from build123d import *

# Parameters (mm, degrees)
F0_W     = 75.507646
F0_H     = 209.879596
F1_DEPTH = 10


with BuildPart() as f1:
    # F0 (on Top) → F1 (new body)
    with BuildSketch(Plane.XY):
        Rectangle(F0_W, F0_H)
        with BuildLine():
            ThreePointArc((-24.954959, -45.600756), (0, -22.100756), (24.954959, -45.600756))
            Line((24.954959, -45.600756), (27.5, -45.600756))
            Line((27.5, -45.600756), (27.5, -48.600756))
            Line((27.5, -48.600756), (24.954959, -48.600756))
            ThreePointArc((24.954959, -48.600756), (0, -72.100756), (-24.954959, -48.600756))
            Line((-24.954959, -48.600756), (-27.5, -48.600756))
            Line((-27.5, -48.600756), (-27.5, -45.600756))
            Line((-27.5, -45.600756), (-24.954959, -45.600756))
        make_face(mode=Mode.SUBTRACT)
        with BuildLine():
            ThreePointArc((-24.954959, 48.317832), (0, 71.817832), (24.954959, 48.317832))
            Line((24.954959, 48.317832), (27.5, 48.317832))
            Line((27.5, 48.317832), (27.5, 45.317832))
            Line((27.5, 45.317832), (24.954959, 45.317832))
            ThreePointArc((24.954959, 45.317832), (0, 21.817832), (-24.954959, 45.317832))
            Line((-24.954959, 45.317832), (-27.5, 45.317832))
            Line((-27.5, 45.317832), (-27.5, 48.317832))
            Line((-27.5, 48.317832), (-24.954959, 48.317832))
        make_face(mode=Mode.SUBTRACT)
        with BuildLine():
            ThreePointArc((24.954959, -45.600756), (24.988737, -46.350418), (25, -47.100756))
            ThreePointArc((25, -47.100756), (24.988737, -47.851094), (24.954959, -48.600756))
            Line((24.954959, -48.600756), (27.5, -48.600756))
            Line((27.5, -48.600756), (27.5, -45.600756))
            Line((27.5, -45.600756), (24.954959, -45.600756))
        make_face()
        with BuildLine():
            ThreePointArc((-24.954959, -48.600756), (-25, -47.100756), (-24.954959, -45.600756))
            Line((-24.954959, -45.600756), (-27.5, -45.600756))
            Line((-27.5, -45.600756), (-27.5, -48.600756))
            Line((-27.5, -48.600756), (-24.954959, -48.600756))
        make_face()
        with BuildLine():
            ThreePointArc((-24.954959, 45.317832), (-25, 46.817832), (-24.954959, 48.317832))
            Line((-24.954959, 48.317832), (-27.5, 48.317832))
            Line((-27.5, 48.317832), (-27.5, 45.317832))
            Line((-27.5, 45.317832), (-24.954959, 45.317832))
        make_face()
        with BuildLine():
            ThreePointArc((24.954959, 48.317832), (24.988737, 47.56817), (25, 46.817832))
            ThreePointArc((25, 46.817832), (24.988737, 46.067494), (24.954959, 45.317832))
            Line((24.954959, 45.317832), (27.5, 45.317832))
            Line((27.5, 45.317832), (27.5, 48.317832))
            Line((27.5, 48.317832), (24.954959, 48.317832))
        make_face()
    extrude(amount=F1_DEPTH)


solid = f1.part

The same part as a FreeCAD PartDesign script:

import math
import FreeCAD as App
import Part
import Sketcher
Q = App.Units.Quantity


def add_polygon(sketch, points):
    """Adds a closed chain of lines whose ends are joined by coincident constraints."""
    first, n = sketch.GeometryCount, len(points)
    for a, b in zip(points, points[1:] + points[:1]):
        sketch.addGeometry(Part.LineSegment(App.Vector(*a, 0), App.Vector(*b, 0)), False)
    for i in range(n):
        sketch.addConstraint(Sketcher.Constraint("Coincident", first + i, 2, first + (i + 1) % n, 1))

doc = App.newDocument("Part")
body = doc.addObject("PartDesign::Body", "Body")

sketch1 = doc.addObject("Sketcher::SketchObject", "Sketch")
body.addObject(sketch1)
sketch1.AttachmentSupport = (doc.XY_Plane, [""])
sketch1.MapMode = "FlatFace"
add_polygon(sketch1, [(-37.753823, 104.939798), (-37.753823, -104.939798), (37.753823, -104.939798), (37.753823, 104.939798)])
sketch1.addGeometry(Part.ArcOfCircle(Part.Circle(App.Vector(0, -47.100756, 0), App.Vector(0, 0, 1), 25), math.radians(3.439812), math.radians(176.560188)), False)
sketch1.addGeometry(Part.ArcOfCircle(Part.Circle(App.Vector(-0.000238, -47.10077, 0), App.Vector(0, 0, 1), 25.000238), math.radians(0.000033), math.radians(3.439813)), False)
sketch1.addGeometry(Part.ArcOfCircle(Part.Circle(App.Vector(-0.000238, -47.100742, 0), App.Vector(0, 0, 1), 25.000238), math.radians(-3.439813), math.radians(-0.000033)), False)
sketch1.addGeometry(Part.ArcOfCircle(Part.Circle(App.Vector(0, -47.100756, 0), App.Vector(0, 0, 1), 25), math.radians(-176.560188), math.radians(-3.439812)), False)
sketch1.addGeometry(Part.ArcOfCircle(Part.Circle(App.Vector(-0.000237, -47.100756, 0), App.Vector(0, 0, 1), 24.999763), math.radians(176.560155), math.radians(183.439845)), False)
sketch1.addGeometry(Part.ArcOfCircle(Part.Circle(App.Vector(0, 46.817832, 0), App.Vector(0, 0, 1), 25), math.radians(3.439812), math.radians(176.560188)), False)
sketch1.addGeometry(Part.ArcOfCircle(Part.Circle(App.Vector(-0.000238, 46.817818, 0), App.Vector(0, 0, 1), 25.000238), math.radians(0.000033), math.radians(3.439813)), False)
sketch1.addGeometry(Part.ArcOfCircle(Part.Circle(App.Vector(-0.000238, 46.817846, 0), App.Vector(0, 0, 1), 25.000238), math.radians(-3.439813), math.radians(-0.000033)), False)
sketch1.addGeometry(Part.ArcOfCircle(Part.Circle(App.Vector(0, 46.817832, 0), App.Vector(0, 0, 1), 25), math.radians(-176.560188), math.radians(-3.439812)), False)
sketch1.addGeometry(Part.ArcOfCircle(Part.Circle(App.Vector(-0.000237, 46.817832, 0), App.Vector(0, 0, 1), 24.999763), math.radians(176.560155), math.radians(183.439845)), False)
sketch1.addConstraint(Sketcher.Constraint("Coincident", 4, 1, 5, 2))
sketch1.addConstraint(Sketcher.Constraint("Coincident", 5, 1, 6, 2))
sketch1.addConstraint(Sketcher.Constraint("Coincident", 6, 1, 7, 2))
sketch1.addConstraint(Sketcher.Constraint("Coincident", 7, 1, 8, 2))
sketch1.addConstraint(Sketcher.Constraint("Coincident", 8, 1, 4, 2))
sketch1.addConstraint(Sketcher.Constraint("Coincident", 9, 1, 10, 2))
sketch1.addConstraint(Sketcher.Constraint("Coincident", 10, 1, 11, 2))
sketch1.addConstraint(Sketcher.Constraint("Coincident", 11, 1, 12, 2))
sketch1.addConstraint(Sketcher.Constraint("Coincident", 12, 1, 13, 2))
sketch1.addConstraint(Sketcher.Constraint("Coincident", 13, 1, 9, 2))
sketch1.addConstraint(Sketcher.Constraint("Vertical", 0))
sketch1.addConstraint(Sketcher.Constraint("Horizontal", 1))
sketch1.addConstraint(Sketcher.Constraint("Vertical", 2))
sketch1.addConstraint(Sketcher.Constraint("Horizontal", 3))
sketch1.addConstraint(Sketcher.Constraint("Coincident", 7, 3, 4, 3))
sketch1.addConstraint(Sketcher.Constraint("Coincident", 12, 3, 9, 3))
sketch1.addConstraint(Sketcher.Constraint("PointOnObject", 4, 3, -2))
sketch1.addConstraint(Sketcher.Constraint("PointOnObject", 9, 3, -2))
sketch1.addConstraint(Sketcher.Constraint("Radius", 4, Q("25 mm")))
sketch1.addConstraint(Sketcher.Constraint("Radius", 7, Q("25 mm")))
sketch1.addConstraint(Sketcher.Constraint("Radius", 9, Q("25 mm")))
sketch1.addConstraint(Sketcher.Constraint("Radius", 12, Q("25 mm")))
sketch1.addConstraint(Sketcher.Constraint("DistanceX", -1, 1, 5, 1, Q("25 mm")))
sketch1.addConstraint(Sketcher.Constraint("DistanceX", -1, 1, 10, 1, Q("25 mm")))
sketch1.addConstraint(Sketcher.Constraint("DistanceY", 6, 1, 4, 1, Q("3 mm")))
sketch1.addConstraint(Sketcher.Constraint("DistanceY", 7, 1, 8, 1, Q("3 mm")))
sketch1.addConstraint(Sketcher.Constraint("DistanceY", 11, 1, 9, 1, Q("3 mm")))
sketch1.addConstraint(Sketcher.Constraint("DistanceY", 12, 1, 13, 1, Q("3 mm")))
sketch1.addConstraint(Sketcher.Constraint("DistanceY", 4, 3, 4, 1, Q("1.5 mm")))
sketch1.addConstraint(Sketcher.Constraint("DistanceY", 5, 1, 4, 1, Q("1.5 mm")))
sketch1.addConstraint(Sketcher.Constraint("DistanceY", 7, 1, 8, 3, Q("1.5 mm")))
sketch1.addConstraint(Sketcher.Constraint("DistanceY", 9, 3, 9, 1, Q("1.5 mm")))
sketch1.addConstraint(Sketcher.Constraint("DistanceY", 10, 1, 9, 1, Q("1.5 mm")))
sketch1.addConstraint(Sketcher.Constraint("DistanceY", 12, 1, 13, 3, Q("1.5 mm")))
sketch1.addConstraint(Sketcher.Constraint("Radius", 5, Q("25.000238 mm")))
sketch1.addConstraint(Sketcher.Constraint("Radius", 6, Q("25.000238 mm")))
sketch1.addConstraint(Sketcher.Constraint("Radius", 10, Q("25.000238 mm")))
sketch1.addConstraint(Sketcher.Constraint("Radius", 11, Q("25.000238 mm")))
sketch1.addConstraint(Sketcher.Constraint("Radius", 8, Q("24.999763 mm")))
sketch1.addConstraint(Sketcher.Constraint("Radius", 13, Q("24.999763 mm")))
sketch1.addConstraint(Sketcher.Constraint("DistanceY", 4, 3, 11, 3, Q("93.918602 mm")))
sketch1.addConstraint(Sketcher.Constraint("DistanceX", 1, 1, 1, 2, Q("75.507646 mm")))
sketch1.addConstraint(Sketcher.Constraint("DistanceY", 0, 2, 0, 1, Q("209.879596 mm")))
sketch1.addConstraint(Sketcher.Constraint("DistanceY", 5, 3, -1, 1, Q("47.10077 mm")))
sketch1.addConstraint(Sketcher.Constraint("DistanceY", 0, 2, 7, 3, Q("57.839042 mm")))
sketch1.addConstraint(Sketcher.Constraint("DistanceX", 5, 3, 1, 2, Q("37.754061 mm")))
pad1 = doc.addObject("PartDesign::Pad", "Pad")
body.addObject(pad1)
pad1.Profile = sketch1
pad1.Length = 10

doc.recompute()
